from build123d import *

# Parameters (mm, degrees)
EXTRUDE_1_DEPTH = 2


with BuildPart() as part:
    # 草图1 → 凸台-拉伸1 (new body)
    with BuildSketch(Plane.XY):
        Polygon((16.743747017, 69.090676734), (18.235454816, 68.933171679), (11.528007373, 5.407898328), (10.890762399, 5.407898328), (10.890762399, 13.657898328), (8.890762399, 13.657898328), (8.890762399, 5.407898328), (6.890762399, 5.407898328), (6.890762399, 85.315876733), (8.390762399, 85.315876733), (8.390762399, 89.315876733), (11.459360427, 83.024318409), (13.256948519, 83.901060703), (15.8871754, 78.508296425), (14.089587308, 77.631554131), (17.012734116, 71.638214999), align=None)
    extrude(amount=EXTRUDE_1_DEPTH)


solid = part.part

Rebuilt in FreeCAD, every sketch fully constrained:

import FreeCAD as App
import Part
import Sketcher
from FreeCAD import Vector
Q = App.Units.Quantity

doc = App.newDocument("Part")
params = doc.addObject("Spreadsheet::Sheet", "Params")
for row, (alias, value) in enumerate([
    ("sketch1_width", "2 mm"),
    ("sketch1_height", "4 mm"),
    ("sketch1_length", "2 mm"),
    ("sketch1_length2", "6 mm"),
    ("sketch1_length3", "7 mm"),
    ("pad1_length", "2 mm"),
], start=1):
    params.set(f"A{row}", alias)
    params.set(f"B{row}", "=" + value)
    params.setAlias(f"B{row}", alias)

body = doc.addObject("PartDesign::Body", "Body")

# Sketch on XY plane
sketch1 = body.newObject("Sketcher::SketchObject", "Sketch")
sketch1.AttachmentSupport = (doc.getObject("XY_Plane"), [""])
sketch1.MapMode = "FlatFace"
sketch1.addGeometry([
    Part.LineSegment(Vector(18.2, 68.9, 0), Vector(16.7, 69.1, 0)),  # 0
    Part.LineSegment(Vector(16.7, 69.1, 0), Vector(17, 71.6, 0)),  # 1
    Part.LineSegment(Vector(17, 71.6, 0), Vector(14.1, 77.6, 0)),  # 2
    Part.LineSegment(Vector(14.1, 77.6, 0), Vector(15.9, 78.5, 0)),  # 3
    Part.LineSegment(Vector(15.9, 78.5, 0), Vector(13.3, 83.9, 0)),  # 4
    Part.LineSegment(Vector(13.3, 83.9, 0), Vector(11.5, 83, 0)),  # 5
    Part.LineSegment(Vector(11.5, 83, 0), Vector(8.4, 89.3, 0)),  # 6
    Part.LineSegment(Vector(8.4, 89.3, 0), Vector(8.4, 85.3, 0)),  # 7
    Part.LineSegment(Vector(8.4, 85.3, 0), Vector(6.9, 85.3, 0)),  # 8
    Part.LineSegment(Vector(6.9, 85.3, 0), Vector(6.9, 5.4, 0)),  # 9
    Part.LineSegment(Vector(6.9, 5.4, 0), Vector(8.9, 5.4, 0)),  # 10
    Part.LineSegment(Vector(8.9, 5.4, 0), Vector(8.9, 13.7, 0)),  # 11
    Part.LineSegment(Vector(8.9, 13.7, 0), Vector(10.9, 13.7, 0)),  # 12
    Part.LineSegment(Vector(10.9, 13.7, 0), Vector(10.9, 5.4, 0)),  # 13
    Part.LineSegment(Vector(10.9, 5.4, 0), Vector(11.5, 5.4, 0)),  # 14
    Part.LineSegment(Vector(11.5, 5.4, 0), Vector(18.2, 68.9, 0)),  # 15
], False)
sketch1.addConstraint([
    Sketcher.Constraint("Coincident", 0, 2, 1, 1),
    Sketcher.Constraint("Coincident", 1, 2, 2, 1),
    Sketcher.Constraint("Coincident", 2, 2, 3, 1),
    Sketcher.Constraint("Coincident", 3, 2, 4, 1),
    Sketcher.Constraint("Coincident", 4, 2, 5, 1),
    Sketcher.Constraint("Coincident", 5, 2, 6, 1),
    Sketcher.Constraint("Coincident", 6, 2, 7, 1),
    Sketcher.Constraint("Coincident", 7, 2, 8, 1),
    Sketcher.Constraint("Coincident", 8, 2, 9, 1),
    Sketcher.Constraint("Coincident", 9, 2, 10, 1),
    Sketcher.Constraint("Coincident", 10, 2, 11, 1),
    Sketcher.Constraint("Coincident", 11, 2, 12, 1),
    Sketcher.Constraint("Coincident", 12, 2, 13, 1),
    Sketcher.Constraint("Coincident", 13, 2, 14, 1),
    Sketcher.Constraint("Coincident", 14, 2, 15, 1),
    Sketcher.Constraint("Coincident", 15, 2, 0, 1),
    Sketcher.Constraint("Vertical", 7),
    Sketcher.Constraint("Horizontal", 8),
    Sketcher.Constraint("Vertical", 9),
    Sketcher.Constraint("Horizontal", 10),
    Sketcher.Constraint("Vertical", 11),
    Sketcher.Constraint("Horizontal", 12),
    Sketcher.Constraint("Vertical", 13),
    Sketcher.Constraint("Horizontal", 14),
    Sketcher.Constraint("Perpendicular", 0, 1),
    Sketcher.Constraint("Perpendicular", 2, 3),
    Sketcher.Constraint("Perpendicular", 3, 4),
    Sketcher.Constraint("Perpendicular", 4, 5),
    Sketcher.Constraint("Perpendicular", 5, 6),
    Sketcher.Constraint("Parallel", 1, 15),
    Sketcher.Constraint("Horizontal", 10, 2, 13, 2),
    Sketcher.Constraint("Equal", 10, 12),
    Sketcher.Constraint("Equal", 3, 5),
    Sketcher.Constraint("DistanceX", 10, 1, 10, 2, 2.0),
    Sketcher.Constraint("DistanceY", 7, 2, 7, 1, 4.0),
    Sketcher.Constraint("Angle", 2, Q("116 deg")),
    Sketcher.Constraint("Distance", 3, 2.0),
    Sketcher.Constraint("Distance", 4, 6.0),
    Sketcher.Constraint("Distance", 6, 7.0),
    Sketcher.Constraint("DistanceX", 8, 2, 8, 1, 1.5),
    Sketcher.Constraint("Distance", 0, 1.5),
    Sketcher.Constraint("DistanceY", 11, 1, 11, 2, 8.25),
    Sketcher.Constraint("Distance", 1, 2.5617),
    Sketcher.Constraint("Distance", 2, 6.668201),
    Sketcher.Constraint("Distance", 15, 63.878402),
    Sketcher.Constraint("DistanceY", 9, 2, 9, 1, 79.907978),
    Sketcher.Constraint("DistanceY", -1, 1, 9, 2, 5.407898),
    Sketcher.Constraint("DistanceX", -1, 1, 4, 2, 13.256949),
])
sketch1.setExpression("Constraints[33]", "Params.sketch1_width")
sketch1.setExpression("Constraints[34]", "Params.sketch1_height")
sketch1.setExpression("Constraints[36]", "Params.sketch1_length")
sketch1.setExpression("Constraints[37]", "Params.sketch1_length2")
sketch1.setExpression("Constraints[38]", "Params.sketch1_length3")
pad1 = body.newObject("PartDesign::Pad", "Pad")
pad1.Profile = sketch1
pad1.setExpression("Length", "Params.pad1_length")

doc.recompute()
